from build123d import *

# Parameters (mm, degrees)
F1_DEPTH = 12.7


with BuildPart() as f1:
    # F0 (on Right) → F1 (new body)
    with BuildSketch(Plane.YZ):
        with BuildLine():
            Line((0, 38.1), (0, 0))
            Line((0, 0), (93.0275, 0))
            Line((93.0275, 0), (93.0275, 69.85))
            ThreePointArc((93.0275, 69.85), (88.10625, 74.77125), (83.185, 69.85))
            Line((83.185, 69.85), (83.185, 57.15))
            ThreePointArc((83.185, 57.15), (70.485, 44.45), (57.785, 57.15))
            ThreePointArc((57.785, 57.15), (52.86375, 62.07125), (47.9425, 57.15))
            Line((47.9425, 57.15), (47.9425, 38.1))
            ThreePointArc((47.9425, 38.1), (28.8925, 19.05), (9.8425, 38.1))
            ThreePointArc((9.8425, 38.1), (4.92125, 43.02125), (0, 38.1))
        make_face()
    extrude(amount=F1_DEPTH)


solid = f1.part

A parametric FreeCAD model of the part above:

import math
import FreeCAD as App
import Part
import Sketcher
Q = App.Units.Quantity

doc = App.newDocument("Part")
body = doc.addObject("PartDesign::Body", "Body")

# Sketch on YZ plane
sketch1 = doc.addObject("Sketcher::SketchObject", "Sketch")
body.addObject(sketch1)
sketch1.AttachmentSupport = (doc.YZ_Plane, [""])
sketch1.MapMode = "FlatFace"
sketch1.addGeometry([
    Part.LineSegment(App.Vector(0, 38.1, 0), App.Vector(0, 0, 0)),  # 0
    Part.LineSegment(App.Vector(0, 0, 0), App.Vector(93, 0, 0)),  # 1
    Part.LineSegment(App.Vector(93, 0, 0), App.Vector(93, 69.8, 0)),  # 2
    Part.ArcOfCircle(Part.Circle(App.Vector(88.1, 69.8, 0), App.Vector(0, 0, 1), 4.9), math.radians(0), math.radians(180)),  # 3
    Part.LineSegment(App.Vector(83.2, 69.8, 0), App.Vector(83.2, 57.1, 0)),  # 4
    Part.ArcOfCircle(Part.Circle(App.Vector(70.5, 57.1, 0), App.Vector(0, 0, 1), 12.7), math.radians(180), math.radians(360)),  # 5
    Part.ArcOfCircle(Part.Circle(App.Vector(52.9, 57.1, 0), App.Vector(0, 0, 1), 4.9), math.radians(0), math.radians(180)),  # 6
    Part.LineSegment(App.Vector(47.9, 57.1, 0), App.Vector(47.9, 38.1, 0)),  # 7
    Part.ArcOfCircle(Part.Circle(App.Vector(28.9, 38.1, 0), App.Vector(0, 0, 1), 19.1), math.radians(180), math.radians(360)),  # 8
    Part.ArcOfCircle(Part.Circle(App.Vector(4.9, 38.1, 0), App.Vector(0, 0, 1), 4.9), math.radians(0), math.radians(180)),  # 9
], False)
sketch1.addConstraint([
    Sketcher.Constraint("Coincident", 0, 2, 1, 1),
    Sketcher.Constraint("Coincident", 1, 2, 2, 1),
    Sketcher.Constraint("Tangent", 2, 2, 3, 1),
    Sketcher.Constraint("Tangent", 3, 2, 4, 1),
    Sketcher.Constraint("Tangent", 4, 2, 5, 2),
    Sketcher.Constraint("Tangent", 5, 1, 6, 1),
    Sketcher.Constraint("Tangent", 6, 2, 7, 1),
    Sketcher.Constraint("Tangent", 7, 2, 8, 2),
    Sketcher.Constraint("Tangent", 8, 1, 9, 1),
    Sketcher.Constraint("Tangent", 9, 2, 0, 1),
    Sketcher.Constraint("Vertical", 0),
    Sketcher.Constraint("Horizontal", 1),
    Sketcher.Constraint("Vertical", 2),
    Sketcher.Constraint("Vertical", 4),
    Sketcher.Constraint("Vertical", 7),
    Sketcher.Constraint("Coincident", 0, 2, -1, 1),
    Sketcher.Constraint("Equal", 3, 6),
    Sketcher.Constraint("Equal", 6, 9),
    Sketcher.Constraint("Horizontal", 5, 3, 6, 3),
    Sketcher.Constraint("Horizontal", 8, 3, 9, 3),
    Sketcher.Constraint("Radius", 5, Q("0.5 in")),
    Sketcher.Constraint("Radius", 8, Q("0.75 in")),
    Sketcher.Constraint("DistanceY", 0, 2, 0, 1, Q("1.5 in")),
    Sketcher.Constraint("DistanceY", 4, 2, 4, 1, Q("0.5 in")),
    Sketcher.Constraint("DistanceY", 2, 1, 2, 2, Q("2.75 in")),
    Sketcher.Constraint("DistanceX", 1, 1, 1, 2, Q("3.6625 in")),
])
pad1 = doc.addObject("PartDesign::Pad", "Pad")
body.addObject(pad1)
pad1.Profile = sketch1
pad1.Length = Q("0.5 in")

doc.recompute()
